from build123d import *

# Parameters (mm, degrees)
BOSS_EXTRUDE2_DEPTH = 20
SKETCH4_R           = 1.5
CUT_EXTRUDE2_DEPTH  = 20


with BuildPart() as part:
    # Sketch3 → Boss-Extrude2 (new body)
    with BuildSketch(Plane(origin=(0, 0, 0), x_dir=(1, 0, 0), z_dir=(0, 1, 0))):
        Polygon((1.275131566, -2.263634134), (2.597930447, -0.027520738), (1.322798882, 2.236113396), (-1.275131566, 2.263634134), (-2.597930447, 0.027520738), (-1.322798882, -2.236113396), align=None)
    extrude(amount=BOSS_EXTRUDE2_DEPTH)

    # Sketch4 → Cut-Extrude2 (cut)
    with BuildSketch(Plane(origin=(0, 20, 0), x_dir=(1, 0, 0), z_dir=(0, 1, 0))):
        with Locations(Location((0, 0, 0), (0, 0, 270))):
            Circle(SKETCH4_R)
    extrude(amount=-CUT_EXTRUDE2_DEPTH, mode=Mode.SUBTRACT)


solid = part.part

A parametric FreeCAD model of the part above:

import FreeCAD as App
import Part
import Sketcher

doc = App.newDocument("Part")
body = doc.addObject("PartDesign::Body", "Body")

# Sketch on XZ plane
sketch1 = body.newObject("Sketcher::SketchObject", "Sketch")
sketch1.AttachmentSupport = (doc.getObject("XZ_Plane"), [""])
sketch1.MapMode = "FlatFace"
sketch1.addGeometry([
    Part.LineSegment(App.Vector(1.3, 2.3, 0), App.Vector(2.6, 0, 0)),  # 0
    Part.LineSegment(App.Vector(2.6, 0, 0), App.Vector(1.3, -2.2, 0)),  # 1
    Part.LineSegment(App.Vector(1.3, -2.2, 0), App.Vector(-1.3, -2.3, 0)),  # 2
    Part.LineSegment(App.Vector(-1.3, -2.3, 0), App.Vector(-2.6, 0, 0)),  # 3
    Part.LineSegment(App.Vector(-2.6, 0, 0), App.Vector(-1.3, 2.2, 0)),  # 4
    Part.LineSegment(App.Vector(-1.3, 2.2, 0), App.Vector(1.3, 2.3, 0)),  # 5
], False)
sketch1.addConstraint([
    Sketcher.Constraint("Coincident", 0, 2, 1, 1),
    Sketcher.Constraint("Coincident", 1, 2, 2, 1),
    Sketcher.Constraint("Coincident", 2, 2, 3, 1),
    Sketcher.Constraint("Coincident", 3, 2, 4, 1),
    Sketcher.Constraint("Coincident", 4, 2, 5, 1),
    Sketcher.Constraint("Coincident", 5, 2, 0, 1),
    Sketcher.Constraint("Symmetric", 0, 2, 3, 2, -1, 1),
    Sketcher.Constraint("Symmetric", 1, 2, 4, 2, -1, 1),
    Sketcher.Constraint("Symmetric", 2, 2, 5, 2, -1, 1),
    Sketcher.Constraint("Equal", 0, 1),
    Sketcher.Constraint("Equal", 1, 2),
    Sketcher.Constraint("DistanceX", -1, 1, 1, 2, 1.322799),
    Sketcher.Constraint("DistanceX", 3, 2, 2, 2, 1.322799),
    Sketcher.Constraint("DistanceX", -1, 1, 0, 2, 2.59793),
    Sketcher.Constraint("DistanceY", -1, 1, 0, 2, 0.027521),
])
pad1 = body.newObject("PartDesign::Pad", "Pad")
pad1.Profile = sketch1
pad1.Length = 20
pad1.Reversed = True

# Sketch on XZ plane
sketch2 = body.newObject("Sketcher::SketchObject", "Sketch001")
sketch2.AttachmentSupport = (doc.getObject("XZ_Plane"), [""])
sketch2.MapMode = "FlatFace"
sketch2.AttachmentOffset = App.Placement(App.Vector(0, 0, -20), App.Rotation())
sketch2.addGeometry(Part.Circle(App.Vector(0, 0, 0), App.Vector(0, 0, 1), 1.5), False)
sketch2.addConstraint([
    Sketcher.Constraint("Coincident", 0, 3, -1, 1),
    Sketcher.Constraint("Diameter", 0, 3.0),
])
pocket1 = body.newObject("PartDesign::Pocket", "Pocket")
pocket1.Profile = sketch2
pocket1.Length = 20
pocket1.Reversed = True

doc.recompute()
